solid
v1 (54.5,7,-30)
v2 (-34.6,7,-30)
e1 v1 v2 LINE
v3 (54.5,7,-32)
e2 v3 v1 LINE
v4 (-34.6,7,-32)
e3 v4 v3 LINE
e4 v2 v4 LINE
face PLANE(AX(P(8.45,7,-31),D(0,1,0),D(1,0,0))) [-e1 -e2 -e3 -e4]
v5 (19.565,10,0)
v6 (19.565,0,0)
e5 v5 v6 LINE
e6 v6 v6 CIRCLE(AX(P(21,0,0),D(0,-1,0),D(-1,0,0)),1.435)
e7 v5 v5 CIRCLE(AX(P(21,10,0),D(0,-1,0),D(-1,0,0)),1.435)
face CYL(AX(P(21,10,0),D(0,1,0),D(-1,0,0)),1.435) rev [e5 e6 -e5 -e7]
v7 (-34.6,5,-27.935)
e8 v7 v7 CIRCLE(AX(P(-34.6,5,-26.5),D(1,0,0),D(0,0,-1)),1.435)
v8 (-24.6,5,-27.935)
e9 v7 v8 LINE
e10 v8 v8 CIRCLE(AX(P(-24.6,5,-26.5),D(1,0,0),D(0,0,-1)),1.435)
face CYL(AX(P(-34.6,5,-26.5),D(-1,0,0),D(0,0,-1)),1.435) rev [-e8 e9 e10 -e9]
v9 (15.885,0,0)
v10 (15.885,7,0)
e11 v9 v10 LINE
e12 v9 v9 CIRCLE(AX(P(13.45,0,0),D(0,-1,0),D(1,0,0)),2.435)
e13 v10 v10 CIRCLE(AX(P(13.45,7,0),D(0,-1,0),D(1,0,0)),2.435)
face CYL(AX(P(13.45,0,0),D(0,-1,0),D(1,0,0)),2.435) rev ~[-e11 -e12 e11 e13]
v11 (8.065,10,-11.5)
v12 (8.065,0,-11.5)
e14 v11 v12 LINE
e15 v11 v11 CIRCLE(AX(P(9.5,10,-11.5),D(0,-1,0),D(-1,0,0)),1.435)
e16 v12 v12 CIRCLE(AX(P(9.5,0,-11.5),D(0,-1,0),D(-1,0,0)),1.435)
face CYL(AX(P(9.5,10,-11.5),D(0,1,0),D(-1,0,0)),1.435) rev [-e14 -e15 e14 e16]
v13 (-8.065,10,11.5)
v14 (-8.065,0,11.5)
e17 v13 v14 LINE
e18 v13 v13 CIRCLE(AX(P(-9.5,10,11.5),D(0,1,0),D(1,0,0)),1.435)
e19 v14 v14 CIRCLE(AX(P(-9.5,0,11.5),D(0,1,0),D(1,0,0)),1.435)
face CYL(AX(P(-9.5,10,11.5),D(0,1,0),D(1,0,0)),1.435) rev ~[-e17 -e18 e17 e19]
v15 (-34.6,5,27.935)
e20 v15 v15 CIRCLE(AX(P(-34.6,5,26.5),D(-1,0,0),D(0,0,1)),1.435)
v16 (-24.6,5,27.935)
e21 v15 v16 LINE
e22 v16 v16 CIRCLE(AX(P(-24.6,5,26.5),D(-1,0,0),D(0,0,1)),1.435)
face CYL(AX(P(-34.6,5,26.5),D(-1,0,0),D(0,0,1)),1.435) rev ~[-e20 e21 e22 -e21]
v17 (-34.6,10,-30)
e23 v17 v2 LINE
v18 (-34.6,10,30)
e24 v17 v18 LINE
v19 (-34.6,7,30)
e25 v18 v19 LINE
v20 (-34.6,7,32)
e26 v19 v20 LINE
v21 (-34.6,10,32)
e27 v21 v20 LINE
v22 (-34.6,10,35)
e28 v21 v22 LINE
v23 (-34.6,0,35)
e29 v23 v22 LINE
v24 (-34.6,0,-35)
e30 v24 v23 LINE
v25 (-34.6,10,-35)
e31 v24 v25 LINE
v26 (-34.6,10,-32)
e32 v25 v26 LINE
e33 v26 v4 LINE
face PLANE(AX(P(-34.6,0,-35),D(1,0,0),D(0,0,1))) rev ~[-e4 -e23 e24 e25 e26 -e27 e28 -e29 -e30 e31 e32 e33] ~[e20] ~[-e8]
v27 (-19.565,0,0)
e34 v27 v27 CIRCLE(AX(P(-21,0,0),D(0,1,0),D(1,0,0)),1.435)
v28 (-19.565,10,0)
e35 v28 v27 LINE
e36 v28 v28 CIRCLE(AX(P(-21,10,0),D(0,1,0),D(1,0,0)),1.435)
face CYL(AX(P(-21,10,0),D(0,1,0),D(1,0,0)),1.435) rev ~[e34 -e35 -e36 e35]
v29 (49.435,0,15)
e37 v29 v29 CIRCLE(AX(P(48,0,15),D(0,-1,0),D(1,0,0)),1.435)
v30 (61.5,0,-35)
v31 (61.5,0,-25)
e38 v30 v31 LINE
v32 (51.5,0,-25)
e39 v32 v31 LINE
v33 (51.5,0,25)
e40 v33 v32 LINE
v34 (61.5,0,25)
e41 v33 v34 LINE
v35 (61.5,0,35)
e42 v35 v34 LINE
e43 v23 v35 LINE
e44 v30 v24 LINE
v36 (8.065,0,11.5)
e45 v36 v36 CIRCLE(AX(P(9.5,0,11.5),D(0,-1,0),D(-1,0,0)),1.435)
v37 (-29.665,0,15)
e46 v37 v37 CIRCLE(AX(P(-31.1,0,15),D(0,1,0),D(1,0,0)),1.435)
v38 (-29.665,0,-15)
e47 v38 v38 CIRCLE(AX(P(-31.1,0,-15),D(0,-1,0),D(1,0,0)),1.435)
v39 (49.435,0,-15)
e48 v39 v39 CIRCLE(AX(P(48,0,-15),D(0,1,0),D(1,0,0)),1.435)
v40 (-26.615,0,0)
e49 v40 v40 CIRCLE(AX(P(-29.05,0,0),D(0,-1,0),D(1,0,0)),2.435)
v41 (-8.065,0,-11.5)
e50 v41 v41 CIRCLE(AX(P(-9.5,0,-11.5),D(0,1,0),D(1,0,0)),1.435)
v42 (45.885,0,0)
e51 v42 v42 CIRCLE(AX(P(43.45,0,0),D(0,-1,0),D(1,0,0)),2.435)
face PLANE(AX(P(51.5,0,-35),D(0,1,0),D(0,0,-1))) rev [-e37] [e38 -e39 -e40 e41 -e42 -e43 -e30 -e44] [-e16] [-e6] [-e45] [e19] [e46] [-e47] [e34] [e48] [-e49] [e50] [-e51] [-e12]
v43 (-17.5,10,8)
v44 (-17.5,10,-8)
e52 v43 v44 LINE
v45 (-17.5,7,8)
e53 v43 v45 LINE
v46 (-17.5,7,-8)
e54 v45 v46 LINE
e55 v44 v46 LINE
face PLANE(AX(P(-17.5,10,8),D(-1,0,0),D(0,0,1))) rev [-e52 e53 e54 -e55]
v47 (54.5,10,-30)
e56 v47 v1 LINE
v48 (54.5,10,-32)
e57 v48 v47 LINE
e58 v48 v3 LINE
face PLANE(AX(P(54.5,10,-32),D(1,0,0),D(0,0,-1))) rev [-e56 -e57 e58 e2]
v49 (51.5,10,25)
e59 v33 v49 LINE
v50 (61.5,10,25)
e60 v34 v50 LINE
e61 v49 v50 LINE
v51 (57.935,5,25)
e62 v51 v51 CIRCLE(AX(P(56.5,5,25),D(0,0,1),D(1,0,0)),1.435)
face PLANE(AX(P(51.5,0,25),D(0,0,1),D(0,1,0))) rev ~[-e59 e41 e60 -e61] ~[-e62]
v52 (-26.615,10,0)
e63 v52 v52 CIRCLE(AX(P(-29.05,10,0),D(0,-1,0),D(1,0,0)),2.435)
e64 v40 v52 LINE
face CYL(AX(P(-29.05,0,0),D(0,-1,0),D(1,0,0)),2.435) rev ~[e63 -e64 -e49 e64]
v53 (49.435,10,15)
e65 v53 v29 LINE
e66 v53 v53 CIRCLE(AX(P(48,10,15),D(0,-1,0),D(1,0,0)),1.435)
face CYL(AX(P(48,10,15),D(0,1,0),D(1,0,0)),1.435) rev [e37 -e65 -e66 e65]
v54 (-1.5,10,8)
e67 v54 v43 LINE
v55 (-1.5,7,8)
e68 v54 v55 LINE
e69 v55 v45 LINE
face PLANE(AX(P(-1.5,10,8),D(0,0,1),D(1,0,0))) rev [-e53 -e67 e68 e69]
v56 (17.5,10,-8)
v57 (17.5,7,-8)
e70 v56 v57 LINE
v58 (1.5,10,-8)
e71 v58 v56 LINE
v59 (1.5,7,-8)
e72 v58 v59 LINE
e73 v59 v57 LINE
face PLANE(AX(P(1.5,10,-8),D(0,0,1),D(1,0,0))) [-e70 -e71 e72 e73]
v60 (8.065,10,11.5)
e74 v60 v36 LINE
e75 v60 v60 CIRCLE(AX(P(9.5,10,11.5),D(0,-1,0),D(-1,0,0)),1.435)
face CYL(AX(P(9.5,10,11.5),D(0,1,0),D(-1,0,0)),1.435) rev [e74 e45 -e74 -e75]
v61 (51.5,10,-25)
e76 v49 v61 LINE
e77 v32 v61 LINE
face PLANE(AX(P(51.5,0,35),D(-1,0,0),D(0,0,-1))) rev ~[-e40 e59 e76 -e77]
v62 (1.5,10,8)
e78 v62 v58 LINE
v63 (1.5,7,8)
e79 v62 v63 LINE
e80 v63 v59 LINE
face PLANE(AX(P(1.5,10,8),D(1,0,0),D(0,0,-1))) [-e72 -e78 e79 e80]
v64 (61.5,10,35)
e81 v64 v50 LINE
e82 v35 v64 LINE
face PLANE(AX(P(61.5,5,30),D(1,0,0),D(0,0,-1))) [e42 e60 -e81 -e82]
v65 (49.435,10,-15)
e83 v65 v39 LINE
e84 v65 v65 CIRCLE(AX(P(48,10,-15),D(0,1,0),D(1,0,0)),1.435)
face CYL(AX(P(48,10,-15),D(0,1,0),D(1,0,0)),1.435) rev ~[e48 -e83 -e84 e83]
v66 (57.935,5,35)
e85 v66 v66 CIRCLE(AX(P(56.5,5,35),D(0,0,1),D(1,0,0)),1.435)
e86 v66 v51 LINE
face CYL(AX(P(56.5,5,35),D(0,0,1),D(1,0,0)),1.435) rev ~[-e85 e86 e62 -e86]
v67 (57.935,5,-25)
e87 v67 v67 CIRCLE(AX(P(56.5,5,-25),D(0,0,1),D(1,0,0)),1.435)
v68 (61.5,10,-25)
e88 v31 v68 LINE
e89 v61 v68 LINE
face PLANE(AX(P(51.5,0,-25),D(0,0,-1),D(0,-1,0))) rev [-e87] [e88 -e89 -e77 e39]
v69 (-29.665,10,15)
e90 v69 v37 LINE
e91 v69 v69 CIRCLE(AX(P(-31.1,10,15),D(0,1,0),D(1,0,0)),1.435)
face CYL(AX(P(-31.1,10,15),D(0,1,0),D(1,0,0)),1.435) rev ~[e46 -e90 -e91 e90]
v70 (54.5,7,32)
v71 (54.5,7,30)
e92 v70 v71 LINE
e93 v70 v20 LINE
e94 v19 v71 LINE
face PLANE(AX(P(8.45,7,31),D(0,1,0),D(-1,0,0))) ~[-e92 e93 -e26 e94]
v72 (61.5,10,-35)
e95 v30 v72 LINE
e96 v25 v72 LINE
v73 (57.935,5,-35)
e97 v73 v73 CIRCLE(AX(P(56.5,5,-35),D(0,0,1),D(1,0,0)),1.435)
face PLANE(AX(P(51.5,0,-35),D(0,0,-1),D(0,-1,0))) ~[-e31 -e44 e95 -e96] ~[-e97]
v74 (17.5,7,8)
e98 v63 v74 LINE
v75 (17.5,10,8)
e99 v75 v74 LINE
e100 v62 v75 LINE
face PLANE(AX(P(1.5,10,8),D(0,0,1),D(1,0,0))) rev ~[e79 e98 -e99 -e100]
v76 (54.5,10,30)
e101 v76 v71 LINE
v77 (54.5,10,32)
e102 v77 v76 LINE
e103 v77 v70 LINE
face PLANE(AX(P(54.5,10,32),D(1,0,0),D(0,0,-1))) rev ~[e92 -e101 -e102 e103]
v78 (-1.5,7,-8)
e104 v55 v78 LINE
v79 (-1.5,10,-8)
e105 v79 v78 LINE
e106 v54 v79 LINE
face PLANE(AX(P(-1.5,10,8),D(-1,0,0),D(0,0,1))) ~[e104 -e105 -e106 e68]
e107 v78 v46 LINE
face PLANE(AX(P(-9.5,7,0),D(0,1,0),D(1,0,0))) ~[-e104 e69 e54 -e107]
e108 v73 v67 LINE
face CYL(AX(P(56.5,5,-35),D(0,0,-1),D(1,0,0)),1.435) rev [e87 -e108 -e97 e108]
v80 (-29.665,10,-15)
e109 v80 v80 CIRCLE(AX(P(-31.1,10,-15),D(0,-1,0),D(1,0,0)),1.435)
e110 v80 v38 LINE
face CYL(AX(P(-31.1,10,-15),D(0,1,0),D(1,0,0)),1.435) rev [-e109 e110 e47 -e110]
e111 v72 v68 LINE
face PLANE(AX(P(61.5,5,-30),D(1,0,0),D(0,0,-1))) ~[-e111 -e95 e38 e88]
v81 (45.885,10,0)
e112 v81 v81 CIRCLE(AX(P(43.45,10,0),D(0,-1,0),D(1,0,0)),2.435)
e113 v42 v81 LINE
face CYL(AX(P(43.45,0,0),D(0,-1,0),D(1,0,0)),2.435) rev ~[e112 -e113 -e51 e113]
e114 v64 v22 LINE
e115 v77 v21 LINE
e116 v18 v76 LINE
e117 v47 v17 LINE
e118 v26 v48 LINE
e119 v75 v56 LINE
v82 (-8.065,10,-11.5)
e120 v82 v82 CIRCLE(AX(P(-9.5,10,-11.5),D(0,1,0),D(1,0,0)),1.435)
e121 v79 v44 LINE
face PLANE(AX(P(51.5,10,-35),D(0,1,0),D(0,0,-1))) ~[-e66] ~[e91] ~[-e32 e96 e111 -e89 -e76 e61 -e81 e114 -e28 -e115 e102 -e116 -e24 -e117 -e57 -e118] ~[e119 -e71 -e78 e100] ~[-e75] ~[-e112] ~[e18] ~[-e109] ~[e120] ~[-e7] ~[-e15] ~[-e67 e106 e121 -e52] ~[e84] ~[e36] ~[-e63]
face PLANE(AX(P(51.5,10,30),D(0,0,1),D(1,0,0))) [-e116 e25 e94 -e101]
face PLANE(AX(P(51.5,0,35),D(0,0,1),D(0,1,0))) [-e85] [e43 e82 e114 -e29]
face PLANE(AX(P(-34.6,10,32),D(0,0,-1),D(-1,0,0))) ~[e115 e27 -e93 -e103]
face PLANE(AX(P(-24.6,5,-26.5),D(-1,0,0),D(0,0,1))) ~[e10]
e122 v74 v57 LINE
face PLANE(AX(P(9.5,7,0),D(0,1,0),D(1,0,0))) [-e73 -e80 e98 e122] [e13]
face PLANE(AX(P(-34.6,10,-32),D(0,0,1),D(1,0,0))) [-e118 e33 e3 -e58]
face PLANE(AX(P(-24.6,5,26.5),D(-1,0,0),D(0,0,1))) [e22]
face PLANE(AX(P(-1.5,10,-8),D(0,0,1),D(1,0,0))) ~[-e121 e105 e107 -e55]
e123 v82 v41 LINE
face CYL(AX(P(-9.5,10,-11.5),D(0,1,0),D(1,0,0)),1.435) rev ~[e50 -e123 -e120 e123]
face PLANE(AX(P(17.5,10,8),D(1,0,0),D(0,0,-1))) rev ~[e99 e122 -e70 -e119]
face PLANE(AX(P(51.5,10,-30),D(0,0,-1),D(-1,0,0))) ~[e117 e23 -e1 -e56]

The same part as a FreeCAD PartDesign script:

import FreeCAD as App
import Part
import Sketcher

V = App.Vector

doc = App.newDocument("Part")
body = doc.addObject("PartDesign::Body", "Body")

# Sketch on XZ plane
sketch1 = body.newObject("Sketcher::SketchObject", "Sketch")
sketch1.AttachmentSupport = (doc.getObject("XZ_Plane"), [""])
sketch1.MapMode = "FlatFace"
sketch1.addGeometry([
    Part.LineSegment(V(52, 35, 0), V(52, -35, 0)),
    Part.LineSegment(V(52, -35, 0), V(-35, -35, 0)),
    Part.LineSegment(V(-35, -35, 0), V(-35, 35, 0)),
    Part.LineSegment(V(-35, 35, 0), V(52, 35, 0)),
], False)
sketch1.addConstraint([
    Sketcher.Constraint("Coincident", 0, 2, 1, 1),
    Sketcher.Constraint("Coincident", 1, 2, 2, 1),
    Sketcher.Constraint("Coincident", 2, 2, 3, 1),
    Sketcher.Constraint("Coincident", 3, 2, 0, 1),
    Sketcher.Constraint("Vertical", 0),
    Sketcher.Constraint("Horizontal", 1),
    Sketcher.Constraint("Vertical", 2),
    Sketcher.Constraint("Horizontal", 3),
    Sketcher.Constraint("DistanceY", 0, 2, 0, 1, 70.0),
    Sketcher.Constraint("DistanceX", 1, 2, 1, 1, 86.1),
    Sketcher.Constraint("DistanceY", 0, 2, -1, 1, 35.0),
    Sketcher.Constraint("DistanceX", -1, 1, 0, 2, 51.5),
])
pad1 = body.newObject("PartDesign::Pad", "Pad")
pad1.Profile = sketch1
pad1.Length = 10
pad1.Reversed = True

# Sketch on XZ plane
sketch2 = body.newObject("Sketcher::SketchObject", "Sketch001")
sketch2.AttachmentSupport = (doc.getObject("XZ_Plane"), [""])
sketch2.MapMode = "FlatFace"
sketch2.AttachmentOffset = App.Placement(V(0, 0, -10), App.Rotation())
sketch2.addGeometry([
    Part.LineSegment(V(-34.6, -32, 0), V(-34.6, -30, 0)),
    Part.LineSegment(V(-34.6, -30, 0), V(51.5, -30, 0)),
    Part.LineSegment(V(51.5, -30, 0), V(51.5, -32, 0)),
    Part.LineSegment(V(51.5, -32, 0), V(-34.6, -32, 0)),
], False)
sketch2.addConstraint([
    Sketcher.Constraint("Coincident", 0, 2, 1, 1),
    Sketcher.Constraint("Coincident", 1, 2, 2, 1),
    Sketcher.Constraint("Coincident", 2, 2, 3, 1),
    Sketcher.Constraint("Coincident", 3, 2, 0, 1),
    Sketcher.Constraint("Vertical", 0),
    Sketcher.Constraint("Horizontal", 1),
    Sketcher.Constraint("Vertical", 2),
    Sketcher.Constraint("Horizontal", 3),
    Sketcher.Constraint("DistanceY", 0, 1, 0, 2, 2.0),
    Sketcher.Constraint("DistanceX", 1, 1, 1, 2, 86.1),
    Sketcher.Constraint("DistanceY", 0, 2, -1, 1, 30.0),
    Sketcher.Constraint("DistanceX", 0, 2, -1, 1, 34.6),
])
pocket1 = body.newObject("PartDesign::Pocket", "Pocket")
pocket1.Profile = sketch2
pocket1.Length = 3
pocket1.Reversed = True
doc.recompute()

mirrored = body.newObject("PartDesign::Mirrored", "Mirrored")
mirrored.Originals = [pocket1]
mirrored.MirrorPlane = (doc.getObject("XY_Plane"), [""])
body.Tip = mirrored

# Sketch on XZ plane
sketch3 = body.newObject("Sketcher::SketchObject", "Sketch002")
sketch3.AttachmentSupport = (doc.getObject("XZ_Plane"), [""])
sketch3.MapMode = "FlatFace"
sketch3.AttachmentOffset = App.Placement(V(0, 0, -10), App.Rotation())
sketch3.addGeometry(Part.Circle(V(-31.1, 15, 0), V(0, 0, 1), 1.4), False)
sketch3.addConstraint([
    Sketcher.Constraint("Diameter", 0, 2.87),
    Sketcher.Constraint("DistanceY", -1, 1, 0, 3, 15.0),
    Sketcher.Constraint("DistanceX", 0, 3, -1, 1, 31.1),
])
pocket2 = body.newObject("PartDesign::Pocket", "Pocket001")
pocket2.Profile = sketch3
pocket2.Length = 10
pocket2.Reversed = True
doc.recompute()

mirrored2 = body.newObject("PartDesign::Mirrored", "Mirrored001")
mirrored2.Originals = [pocket2]
mirrored2.MirrorPlane = (doc.getObject("XY_Plane"), [""])
body.Tip = mirrored2

# Sketch on YZ plane
sketch4 = body.newObject("Sketcher::SketchObject", "Sketch003")
sketch4.AttachmentSupport = (doc.getObject("YZ_Plane"), [""])
sketch4.MapMode = "FlatFace"
sketch4.AttachmentOffset = App.Placement(V(0, 0, 51.5), App.Rotation())
sketch4.addGeometry([
    Part.LineSegment(V(10, 35, 0), V(0, 35, 0)),
    Part.LineSegment(V(0, 35, 0), V(0, 25, 0)),
    Part.LineSegment(V(0, 25, 0), V(10, 25, 0)),
    Part.LineSegment(V(10, 25, 0), V(10, 35, 0)),
], False)
sketch4.addConstraint([
    Sketcher.Constraint("Coincident", 0, 2, 1, 1),
    Sketcher.Constraint("Coincident", 1, 2, 2, 1),
    Sketcher.Constraint("Coincident", 2, 2, 3, 1),
    Sketcher.Constraint("Coincident", 3, 2, 0, 1),
    Sketcher.Constraint("Horizontal", 0),
    Sketcher.Constraint("Vertical", 1),
    Sketcher.Constraint("Horizontal", 2),
    Sketcher.Constraint("Vertical", 3),
    Sketcher.Constraint("PointOnObject", 0, 2, -2),
    Sketcher.Constraint("Equal", 2, 1),
    Sketcher.Constraint("DistanceX", 0, 2, 0, 1, 10.0),
    Sketcher.Constraint("DistanceY", -1, 1, 0, 2, 35.0),
])
pad2 = body.newObject("PartDesign::Pad", "Pad001")
pad2.Profile = sketch4
pad2.Length = 10

# Sketch on XZ plane
sketch5 = body.newObject("Sketcher::SketchObject", "Sketch004")
sketch5.AttachmentSupport = (doc.getObject("XZ_Plane"), [""])
sketch5.MapMode = "FlatFace"
sketch5.AttachmentOffset = App.Placement(V(0, 0, -10), App.Rotation())
sketch5.addGeometry([
    Part.LineSegment(V(51.5, 30, 0), V(51.5, 32, 0)),
    Part.LineSegment(V(51.5, 32, 0), V(54.5, 32, 0)),
    Part.LineSegment(V(54.5, 32, 0), V(54.5, 30, 0)),
    Part.LineSegment(V(54.5, 30, 0), V(51.5, 30, 0)),
], False)
sketch5.addConstraint([
    Sketcher.Constraint("Coincident", 0, 2, 1, 1),
    Sketcher.Constraint("Coincident", 1, 2, 2, 1),
    Sketcher.Constraint("Coincident", 2, 2, 3, 1),
    Sketcher.Constraint("Coincident", 3, 2, 0, 1),
    Sketcher.Constraint("Vertical", 0),
    Sketcher.Constraint("Horizontal", 1),
    Sketcher.Constraint("Vertical", 2),
    Sketcher.Constraint("Horizontal", 3),
    Sketcher.Constraint("DistanceX", 1, 1, 1, 2, 3.0),
    Sketcher.Constraint("DistanceY", 0, 1, 0, 2, 2.0),
    Sketcher.Constraint("DistanceY", -1, 1, 0, 2, 32.0),
    Sketcher.Constraint("DistanceX", -1, 1, 0, 2, 51.5),
])
pocket3 = body.newObject("PartDesign::Pocket", "Pocket002")
pocket3.Profile = sketch5
pocket3.Length = 3
pocket3.Reversed = True
doc.recompute()

mirrored3 = body.newObject("PartDesign::Mirrored", "Mirrored002")
mirrored3.Originals = [pad2, pocket3]
mirrored3.MirrorPlane = (doc.getObject("XY_Plane"), [""])
body.Tip = mirrored3

# Sketch on XZ plane
sketch6 = body.newObject("Sketcher::SketchObject", "Sketch005")
sketch6.AttachmentSupport = (doc.getObject("XZ_Plane"), [""])
sketch6.MapMode = "FlatFace"
sketch6.AttachmentOffset = App.Placement(V(0, 0, -10), App.Rotation())
sketch6.addGeometry(Part.Circle(V(48, -15, 0), V(0, 0, 1), 1.4), False)
sketch6.addConstraint([
    Sketcher.Constraint("Diameter", 0, 2.87),
    Sketcher.Constraint("DistanceX", -1, 1, 0, 3, 48.0),
    Sketcher.Constraint("DistanceY", 0, 3, -1, 1, 15.0),
])
pocket4 = body.newObject("PartDesign::Pocket", "Pocket003")
pocket4.Profile = sketch6
pocket4.Length = 10
pocket4.Reversed = True
doc.recompute()

mirrored4 = body.newObject("PartDesign::Mirrored", "Mirrored003")
mirrored4.Originals = [pocket4]
mirrored4.MirrorPlane = (doc.getObject("XY_Plane"), [""])
body.Tip = mirrored4

# Sketch on YZ plane
sketch7 = body.newObject("Sketcher::SketchObject", "Sketch006")
sketch7.AttachmentSupport = (doc.getObject("YZ_Plane"), [""])
sketch7.MapMode = "FlatFace"
sketch7.AttachmentOffset = App.Placement(V(0, 0, -34.6), App.Rotation())
sketch7.addGeometry(Part.Circle(V(5, 26.5, 0), V(0, 0, 1), 1.4), False)
sketch7.addConstraint([
    Sketcher.Constraint("Diameter", 0, 2.87),
    Sketcher.Constraint("DistanceX", -1, 1, 0, 3, 5.0),
    Sketcher.Constraint("DistanceY", -1, 1, 0, 3, 26.5),
])
pocket5 = body.newObject("PartDesign::Pocket", "Pocket004")
pocket5.Profile = sketch7
pocket5.Length = 10
pocket5.Reversed = True
doc.recompute()

mirrored5 = body.newObject("PartDesign::Mirrored", "Mirrored004")
mirrored5.Originals = [pocket5]
mirrored5.MirrorPlane = (doc.getObject("XY_Plane"), [""])
body.Tip = mirrored5

# Sketch on XY plane
sketch8 = body.newObject("Sketcher::SketchObject", "Sketch007")
sketch8.AttachmentSupport = (doc.getObject("XY_Plane"), [""])
sketch8.MapMode = "FlatFace"
sketch8.AttachmentOffset = App.Placement(V(0, 0, 35), App.Rotation())
sketch8.addGeometry(Part.Circle(V(56.5, 5, 0), V(0, 0, 1), 1.4), False)
sketch8.addConstraint([
    Sketcher.Constraint("Diameter", 0, 2.87),
    Sketcher.Constraint("DistanceY", -1, 1, 0, 3, 5.0),
    Sketcher.Constraint("DistanceX", -1, 1, 0, 3, 56.5),
])
pocket6 = body.newObject("PartDesign::Pocket", "Pocket005")
pocket6.Profile = sketch8
pocket6.Length = 10
doc.recompute()

mirrored6 = body.newObject("PartDesign::Mirrored", "Mirrored005")
mirrored6.Originals = [pocket6]
mirrored6.MirrorPlane = (doc.getObject("XY_Plane"), [""])
body.Tip = mirrored6

# Sketch on XZ plane
sketch9 = body.newObject("Sketcher::SketchObject", "Sketch008")
sketch9.AttachmentSupport = (doc.getObject("XZ_Plane"), [""])
sketch9.MapMode = "FlatFace"
sketch9.addGeometry([
    Part.Circle(V(13.4, 0, 0), V(0, 0, 1), 2.4),
    Part.Circle(V(43.5, 0, 0), V(0, 0, 1), 2.4),
    Part.Circle(V(-29.1, 0, 0), V(0, 0, 1), 2.4),
], False)
sketch9.addConstraint([
    Sketcher.Constraint("Equal", 0, 1),
    Sketcher.Constraint("Equal", 1, 2),
    Sketcher.Constraint("PointOnObject", 0, 3, -1),
    Sketcher.Constraint("PointOnObject", 1, 3, -1),
    Sketcher.Constraint("PointOnObject", 2, 3, -1),
    Sketcher.Constraint("Diameter", 0, 4.87),
    Sketcher.Constraint("DistanceX", 0, 3, 1, 3, 30.0),
    Sketcher.Constraint("DistanceX", 2, 3, 0, 3, 42.5),
    Sketcher.Constraint("DistanceX", -1, 1, 0, 3, 13.45),
])
pocket7 = body.newObject("PartDesign::Pocket", "Pocket006")
pocket7.Profile = sketch9
pocket7.Length = 10

# Sketch on XZ plane
sketch10 = body.newObject("Sketcher::SketchObject", "Sketch009")
sketch10.AttachmentSupport = (doc.getObject("XZ_Plane"), [""])
sketch10.MapMode = "FlatFace"
sketch10.AttachmentOffset = App.Placement(V(0, 0, -10), App.Rotation())
sketch10.addGeometry([
    Part.LineSegment(V(2, -8, 0), V(2, 8, 0)),
    Part.LineSegment(V(2, 8, 0), V(18, 8, 0)),
    Part.LineSegment(V(18, 8, 0), V(18, -8, 0)),
    Part.LineSegment(V(18, -8, 0), V(2, -8, 0)),
], False)
sketch10.addConstraint([
    Sketcher.Constraint("Coincident", 0, 2, 1, 1),
    Sketcher.Constraint("Coincident", 1, 2, 2, 1),
    Sketcher.Constraint("Coincident", 2, 2, 3, 1),
    Sketcher.Constraint("Coincident", 3, 2, 0, 1),
    Sketcher.Constraint("Vertical", 0),
    Sketcher.Constraint("Horizontal", 1),
    Sketcher.Constraint("Vertical", 2),
    Sketcher.Constraint("Horizontal", 3),
    Sketcher.Constraint("Equal", 3, 0),
    Sketcher.Constraint("DistanceX", 1, 1, 1, 2, 16.0),
    Sketcher.Constraint("DistanceY", -1, 1, 0, 2, 8.0),
    Sketcher.Constraint("DistanceX", -1, 1, 0, 2, 1.5),
])
pocket8 = body.newObject("PartDesign::Pocket", "Pocket007")
pocket8.Profile = sketch10
pocket8.Length = 3
pocket8.Reversed = True
doc.recompute()

mirrored7 = body.newObject("PartDesign::Mirrored", "Mirrored006")
mirrored7.Originals = [pocket8]
mirrored7.MirrorPlane = (doc.getObject("YZ_Plane"), [""])
body.Tip = mirrored7

# Sketch on XZ plane
sketch11 = body.newObject("Sketcher::SketchObject", "Sketch010")
sketch11.AttachmentSupport = (doc.getObject("XZ_Plane"), [""])
sketch11.MapMode = "FlatFace"
sketch11.AttachmentOffset = App.Placement(V(0, 0, -10), App.Rotation())
sketch11.addGeometry([
    Part.Circle(V(-9.5, -11.5, 0), V(0, 0, 1), 1.4),
    Part.Circle(V(-21, 0, 0), V(0, 0, 1), 1.4),
    Part.Circle(V(-9.5, 11.5, 0), V(0, 0, 1), 1.4),
], False)
sketch11.addConstraint([
    Sketcher.Constraint("Equal", 0, 1),
    Sketcher.Constraint("Equal", 1, 2),
    Sketcher.Constraint("Symmetric", 0, 3, 2, 3, -1),
    Sketcher.Constraint("PointOnObject", 1, 3, -1),
    Sketcher.Constraint("Diameter", 0, 2.87),
    Sketcher.Constraint("DistanceX", 1, 3, -1, 1, 21.0),
    Sketcher.Constraint("DistanceY", 0, 3, 2, 3, 23.0),
    Sketcher.Constraint("DistanceX", 0, 3, -1, 1, 9.5),
])
pocket9 = body.newObject("PartDesign::Pocket", "Pocket008")
pocket9.Profile = sketch11
pocket9.Length = 10
pocket9.Reversed = True
doc.recompute()

mirrored8 = body.newObject("PartDesign::Mirrored", "Mirrored007")
mirrored8.Originals = [pocket9]
mirrored8.MirrorPlane = (doc.getObject("YZ_Plane"), [""])
body.Tip = mirrored8

doc.recompute()
